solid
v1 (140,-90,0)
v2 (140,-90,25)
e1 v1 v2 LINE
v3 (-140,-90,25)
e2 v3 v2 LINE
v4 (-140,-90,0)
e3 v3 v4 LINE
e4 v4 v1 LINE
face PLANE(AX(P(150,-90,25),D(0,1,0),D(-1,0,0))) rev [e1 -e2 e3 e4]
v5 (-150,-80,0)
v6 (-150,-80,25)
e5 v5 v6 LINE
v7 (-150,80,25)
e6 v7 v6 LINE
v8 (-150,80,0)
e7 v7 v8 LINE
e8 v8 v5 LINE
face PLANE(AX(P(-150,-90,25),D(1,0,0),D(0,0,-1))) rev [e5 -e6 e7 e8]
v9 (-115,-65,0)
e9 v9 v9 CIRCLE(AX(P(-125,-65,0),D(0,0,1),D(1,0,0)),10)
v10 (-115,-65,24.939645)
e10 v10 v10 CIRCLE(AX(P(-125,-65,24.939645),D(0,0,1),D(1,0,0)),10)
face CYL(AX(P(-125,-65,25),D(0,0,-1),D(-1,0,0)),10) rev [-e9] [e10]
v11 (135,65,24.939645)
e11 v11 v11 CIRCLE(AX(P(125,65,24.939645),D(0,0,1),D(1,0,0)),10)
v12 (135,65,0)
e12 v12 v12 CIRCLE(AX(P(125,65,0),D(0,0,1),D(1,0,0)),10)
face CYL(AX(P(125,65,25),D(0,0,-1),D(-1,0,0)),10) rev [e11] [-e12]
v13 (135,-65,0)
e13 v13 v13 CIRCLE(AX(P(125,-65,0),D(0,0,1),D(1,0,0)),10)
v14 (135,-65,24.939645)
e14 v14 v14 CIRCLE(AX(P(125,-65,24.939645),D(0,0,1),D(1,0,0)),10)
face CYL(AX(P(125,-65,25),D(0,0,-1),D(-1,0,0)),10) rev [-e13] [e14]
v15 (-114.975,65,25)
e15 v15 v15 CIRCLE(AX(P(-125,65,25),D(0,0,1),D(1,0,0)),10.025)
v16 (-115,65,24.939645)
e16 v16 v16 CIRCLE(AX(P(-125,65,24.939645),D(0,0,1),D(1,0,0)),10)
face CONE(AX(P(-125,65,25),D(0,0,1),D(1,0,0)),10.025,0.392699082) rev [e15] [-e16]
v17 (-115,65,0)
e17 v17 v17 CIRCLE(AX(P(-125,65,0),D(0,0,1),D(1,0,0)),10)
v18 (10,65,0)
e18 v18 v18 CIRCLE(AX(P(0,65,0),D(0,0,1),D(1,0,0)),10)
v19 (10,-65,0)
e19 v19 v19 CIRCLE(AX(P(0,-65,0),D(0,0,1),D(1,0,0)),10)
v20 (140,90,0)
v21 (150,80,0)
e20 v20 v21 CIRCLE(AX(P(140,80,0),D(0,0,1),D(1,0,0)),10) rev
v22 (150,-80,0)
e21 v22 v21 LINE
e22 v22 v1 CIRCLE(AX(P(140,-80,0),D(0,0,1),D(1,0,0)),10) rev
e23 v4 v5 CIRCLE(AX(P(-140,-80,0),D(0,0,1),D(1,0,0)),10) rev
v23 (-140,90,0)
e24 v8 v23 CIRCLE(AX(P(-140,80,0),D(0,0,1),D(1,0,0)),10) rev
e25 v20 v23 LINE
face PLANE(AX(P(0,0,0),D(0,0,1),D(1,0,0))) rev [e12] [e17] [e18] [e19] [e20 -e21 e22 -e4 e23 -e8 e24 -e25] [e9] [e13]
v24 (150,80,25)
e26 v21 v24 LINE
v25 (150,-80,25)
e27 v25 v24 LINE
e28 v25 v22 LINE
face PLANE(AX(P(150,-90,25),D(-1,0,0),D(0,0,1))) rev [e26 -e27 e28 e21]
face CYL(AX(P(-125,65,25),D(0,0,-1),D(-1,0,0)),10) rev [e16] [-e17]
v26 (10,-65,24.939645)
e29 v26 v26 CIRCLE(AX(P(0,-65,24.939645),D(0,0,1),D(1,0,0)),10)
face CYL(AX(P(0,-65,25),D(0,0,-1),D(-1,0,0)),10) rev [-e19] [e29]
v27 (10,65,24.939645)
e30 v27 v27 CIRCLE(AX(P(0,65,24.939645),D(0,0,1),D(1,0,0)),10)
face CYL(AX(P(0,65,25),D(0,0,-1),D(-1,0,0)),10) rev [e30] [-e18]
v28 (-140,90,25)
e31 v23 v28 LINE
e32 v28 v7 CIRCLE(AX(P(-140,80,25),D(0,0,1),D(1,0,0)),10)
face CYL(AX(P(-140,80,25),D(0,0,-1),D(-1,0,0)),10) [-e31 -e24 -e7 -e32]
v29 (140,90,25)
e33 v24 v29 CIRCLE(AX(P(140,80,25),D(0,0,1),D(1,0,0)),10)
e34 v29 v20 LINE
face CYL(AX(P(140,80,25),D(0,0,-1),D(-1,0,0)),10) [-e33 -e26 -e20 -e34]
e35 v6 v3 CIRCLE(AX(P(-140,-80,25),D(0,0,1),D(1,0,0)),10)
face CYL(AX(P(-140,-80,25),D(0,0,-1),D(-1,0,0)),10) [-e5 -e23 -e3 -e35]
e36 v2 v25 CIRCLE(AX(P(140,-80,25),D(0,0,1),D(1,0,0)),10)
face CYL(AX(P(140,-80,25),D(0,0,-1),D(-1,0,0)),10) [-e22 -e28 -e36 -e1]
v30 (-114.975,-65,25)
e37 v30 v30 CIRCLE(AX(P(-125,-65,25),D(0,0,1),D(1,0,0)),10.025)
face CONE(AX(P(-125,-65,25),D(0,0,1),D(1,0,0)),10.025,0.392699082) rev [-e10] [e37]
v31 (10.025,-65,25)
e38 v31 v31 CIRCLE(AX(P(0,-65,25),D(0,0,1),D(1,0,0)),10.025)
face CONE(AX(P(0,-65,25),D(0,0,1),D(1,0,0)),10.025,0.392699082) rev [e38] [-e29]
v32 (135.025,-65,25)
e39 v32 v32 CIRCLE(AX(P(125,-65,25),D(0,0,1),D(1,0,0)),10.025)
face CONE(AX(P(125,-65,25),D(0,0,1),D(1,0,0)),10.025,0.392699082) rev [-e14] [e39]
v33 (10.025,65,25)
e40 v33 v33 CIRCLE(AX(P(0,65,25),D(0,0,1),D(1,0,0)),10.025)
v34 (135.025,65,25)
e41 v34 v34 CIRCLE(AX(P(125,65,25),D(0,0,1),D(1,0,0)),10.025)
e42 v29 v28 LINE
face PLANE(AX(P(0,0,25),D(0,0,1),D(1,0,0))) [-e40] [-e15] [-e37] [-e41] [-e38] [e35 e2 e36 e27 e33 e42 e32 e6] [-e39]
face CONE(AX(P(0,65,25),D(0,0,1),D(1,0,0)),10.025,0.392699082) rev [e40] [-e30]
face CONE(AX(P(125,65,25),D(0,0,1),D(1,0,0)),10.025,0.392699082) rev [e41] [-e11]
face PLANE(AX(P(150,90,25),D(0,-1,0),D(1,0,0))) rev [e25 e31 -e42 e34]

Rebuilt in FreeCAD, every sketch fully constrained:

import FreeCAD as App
import Part
import Sketcher
Q = App.Units.Quantity


def edges_at(feature, points):
    """Names of the edges that pass closest to the given points."""
    edges = feature.Shape.Edges
    near = lambda p: min(range(len(edges)), key=lambda i: edges[i].distToShape(Part.Vertex(*p))[0])
    return sorted({f"Edge{near(p) + 1}" for p in points})

doc = App.newDocument("Part")
params = doc.addObject("Spreadsheet::Sheet", "Params")
for row, (alias, value) in enumerate([
    ("sketch1_diameter", "20 mm"),
    ("sketch1_width", "300 mm"),
    ("sketch1_height", "180 mm"),
    ("pad1_length", "25 mm"),
    ("fillet_radius", "10 mm"),
    ("fillet2_radius", "10 mm"),
    ("groove_angle", "360 deg"),
    ("sketch3_diameter", "20 mm"),
    ("hole_diameter", "20 mm"),
    ("hole_depth", "27.005 mm"),
    ("hole_csink_diameter", "20.05 mm"),
], start=1):
    params.set(f"A{row}", alias)
    params.set(f"B{row}", "=" + value)
    params.setAlias(f"B{row}", alias)

body = doc.addObject("PartDesign::Body", "Body")

# Sketch on XY plane
sketch1 = body.newObject("Sketcher::SketchObject", "Sketch")
sketch1.AttachmentSupport = (doc.getObject("XY_Plane"), [""])
sketch1.MapMode = "FlatFace"
sketch1.addGeometry(Part.LineSegment(App.Vector(-150, 90, 0), App.Vector(-150, -90, 0)), False)
sketch1.addGeometry(Part.LineSegment(App.Vector(-150, -90, 0), App.Vector(150, -90, 0)), False)
sketch1.addGeometry(Part.LineSegment(App.Vector(150, -90, 0), App.Vector(150, 90, 0)), False)
sketch1.addGeometry(Part.LineSegment(App.Vector(150, 90, 0), App.Vector(-150, 90, 0)), False)
sketch1.addGeometry(Part.Circle(App.Vector(-125, -65, 0), App.Vector(0, 0, 1), 10), False)
sketch1.addGeometry(Part.Circle(App.Vector(0, -65, 0), App.Vector(0, 0, 1), 10), False)
sketch1.addGeometry(Part.Circle(App.Vector(125, -65, 0), App.Vector(0, 0, 1), 10), False)
sketch1.addGeometry(Part.Circle(App.Vector(-125, 65, 0), App.Vector(0, 0, 1), 10), False)
sketch1.addGeometry(Part.Circle(App.Vector(0, 65, 0), App.Vector(0, 0, 1), 10), False)
sketch1.addGeometry(Part.Circle(App.Vector(125, 65, 0), App.Vector(0, 0, 1), 10), False)
sketch1.addConstraint(Sketcher.Constraint("Coincident", 0, 2, 1, 1))
sketch1.addConstraint(Sketcher.Constraint("Coincident", 1, 2, 2, 1))
sketch1.addConstraint(Sketcher.Constraint("Coincident", 2, 2, 3, 1))
sketch1.addConstraint(Sketcher.Constraint("Coincident", 3, 2, 0, 1))
sketch1.addConstraint(Sketcher.Constraint("Vertical", 0))
sketch1.addConstraint(Sketcher.Constraint("Horizontal", 1))
sketch1.addConstraint(Sketcher.Constraint("Vertical", 2))
sketch1.addConstraint(Sketcher.Constraint("Horizontal", 3))
sketch1.addConstraint(Sketcher.Constraint("Equal", 4, 5))
sketch1.addConstraint(Sketcher.Constraint("Equal", 5, 6))
sketch1.addConstraint(Sketcher.Constraint("Equal", 6, 7))
sketch1.addConstraint(Sketcher.Constraint("Equal", 7, 8))
sketch1.addConstraint(Sketcher.Constraint("Equal", 8, 9))
sketch1.addConstraint(Sketcher.Constraint("Symmetric", 6, 3, 7, 3, -1, 1))
sketch1.addConstraint(Sketcher.Constraint("Symmetric", 5, 3, 8, 3, -1, 1))
sketch1.addConstraint(Sketcher.Constraint("Symmetric", 4, 3, 9, 3, -1, 1))
sketch1.addConstraint(Sketcher.Constraint("Symmetric", 0, 2, 2, 2, -1, 1))
sketch1.addConstraint(Sketcher.Constraint("Symmetric", 4, 3, 6, 3, -2))
sketch1.addConstraint(Sketcher.Constraint("PointOnObject", 5, 3, -2))
sketch1.addConstraint(Sketcher.Constraint("Horizontal", 4, 3, 5, 3))
sketch1.addConstraint(Sketcher.Constraint("Diameter", 4, 20.0))
sketch1.addConstraint(Sketcher.Constraint("DistanceX", 1, 1, 1, 2, 300.0))
sketch1.addConstraint(Sketcher.Constraint("DistanceY", 0, 2, 0, 1, 180.0))
sketch1.addConstraint(Sketcher.Constraint("DistanceX", 4, 3, -1, 1, 125.0))
sketch1.addConstraint(Sketcher.Constraint("DistanceY", 4, 3, -1, 1, 65.0))
sketch1.setExpression("Constraints[20]", "Params.sketch1_diameter")
sketch1.setExpression("Constraints[21]", "Params.sketch1_width")
sketch1.setExpression("Constraints[22]", "Params.sketch1_height")
pad1 = body.newObject("PartDesign::Pad", "Pad")
pad1.Profile = sketch1
pad1.setExpression("Length", "Params.pad1_length")
doc.recompute()

fillet = body.newObject("PartDesign::Fillet", "Fillet")
fillet.Base = (pad1, edges_at(pad1, [(-150, 90, 12.5)]))
fillet.setExpression("Radius", "Params.fillet_radius")
doc.recompute()

fillet2 = body.newObject("PartDesign::Fillet", "Fillet001")
fillet2.Base = (fillet, edges_at(fillet, [(150, 90, 12.5), (150, -90, 12.5), (-150, -90, 12.5)]))
fillet2.setExpression("Radius", "Params.fillet2_radius")

# Sketch on YZ plane
sketch2 = body.newObject("Sketcher::SketchObject", "Sketch001")
sketch2.AttachmentSupport = (doc.getObject("YZ_Plane"), [""])
sketch2.MapMode = "FlatFace"
sketch2.AttachmentOffset = App.Placement(App.Vector(0, 0, -125), App.Rotation())
sketch2.addGeometry(Part.LineSegment(App.Vector(65, -8.013606, 0), App.Vector(65, 25, 0)), False)
sketch2.addGeometry(Part.LineSegment(App.Vector(65, 25, 0), App.Vector(54.975, 25, 0)), False)
sketch2.addGeometry(Part.LineSegment(App.Vector(54.975, 25, 0), App.Vector(55, 24.939645, 0)), False)
sketch2.addGeometry(Part.LineSegment(App.Vector(55, 24.939645, 0), App.Vector(55, -2.005, 0)), False)
sketch2.addGeometry(Part.LineSegment(App.Vector(55, -2.005, 0), App.Vector(65, -8.013606, 0)), False)
sketch2.addGeometry(Part.LineSegment(App.Vector(65, 25, 0), App.Vector(65, -8.013606, 0)), True)  # axis
sketch2.addConstraint(Sketcher.Constraint("Coincident", 0, 2, 1, 1))
sketch2.addConstraint(Sketcher.Constraint("Coincident", 1, 2, 2, 1))
sketch2.addConstraint(Sketcher.Constraint("Coincident", 2, 2, 3, 1))
sketch2.addConstraint(Sketcher.Constraint("Coincident", 3, 2, 4, 1))
sketch2.addConstraint(Sketcher.Constraint("Coincident", 4, 2, 0, 1))
sketch2.addConstraint(Sketcher.Constraint("Vertical", 0))
sketch2.addConstraint(Sketcher.Constraint("Horizontal", 1))
sketch2.addConstraint(Sketcher.Constraint("Vertical", 3))
sketch2.addConstraint(Sketcher.Constraint("Vertical", 5))
sketch2.addConstraint(Sketcher.Constraint("Coincident", 5, 1, 0, 2))
sketch2.addConstraint(Sketcher.Constraint("Equal", 0, 5))
sketch2.addConstraint(Sketcher.Constraint("Angle", 4, Q("-31 deg")))
sketch2.addConstraint(Sketcher.Constraint("DistanceX", -1, 1, 0, 2, 65.0))
sketch2.addConstraint(Sketcher.Constraint("DistanceY", -1, 1, 0, 2, 25.0))
sketch2.addConstraint(Sketcher.Constraint("DistanceX", -1, 1, 2, 2, 55.0))
sketch2.addConstraint(Sketcher.Constraint("Angle", 2, Q("-67.5 deg")))
sketch2.addConstraint(Sketcher.Constraint("DistanceX", 1, 2, 1, 1, 10.025))
sketch2.addConstraint(Sketcher.Constraint("DistanceY", 3, 2, -1, 1, 2.005))
groove = body.newObject("PartDesign::Groove", "Groove")
groove.Profile = sketch2
groove.ReferenceAxis = (sketch2, ["Axis0"])
groove.setExpression("Angle", "Params.groove_angle")
doc.recompute()

datumplane = body.newObject("PartDesign::Plane", "DatumPlane")
datumplane.AttachmentSupport = (doc.getObject("XY_Plane"), [""])
datumplane.MapMode = "FlatFace"
datumplane.AttachmentOffset = App.Placement(App.Vector(0, 0, 25), App.Rotation())
mirrored = body.newObject("PartDesign::Mirrored", "Mirrored")
mirrored.Originals = [groove]
mirrored.MirrorPlane = (datumplane, [""])
body.Tip = mirrored

# Sketch on XY plane
sketch3 = body.newObject("Sketcher::SketchObject", "Sketch002")
sketch3.AttachmentSupport = (doc.getObject("XY_Plane"), [""])
sketch3.MapMode = "FlatFace"
sketch3.AttachmentOffset = App.Placement(App.Vector(0, 0, 25), App.Rotation())
sketch3.addGeometry(Part.Circle(App.Vector(-125, 65, 0), App.Vector(0, 0, 1), 10), False)
sketch3.addGeometry(Part.Circle(App.Vector(-125, -65, 0), App.Vector(0, 0, 1), 10), False)
sketch3.addGeometry(Part.Circle(App.Vector(0, 65, 0), App.Vector(0, 0, 1), 10), False)
sketch3.addGeometry(Part.Circle(App.Vector(0, -65, 0), App.Vector(0, 0, 1), 10), False)
sketch3.addGeometry(Part.Circle(App.Vector(125, -65, 0), App.Vector(0, 0, 1), 10), False)
sketch3.addGeometry(Part.Circle(App.Vector(125, 65, 0), App.Vector(0, 0, 1), 10), False)
sketch3.addConstraint(Sketcher.Constraint("Equal", 0, 1))
sketch3.addConstraint(Sketcher.Constraint("Equal", 1, 2))
sketch3.addConstraint(Sketcher.Constraint("Equal", 2, 3))
sketch3.addConstraint(Sketcher.Constraint("Equal", 3, 4))
sketch3.addConstraint(Sketcher.Constraint("Equal", 4, 5))
sketch3.addConstraint(Sketcher.Constraint("Symmetric", 2, 3, 3, 3, -1, 1))
sketch3.addConstraint(Sketcher.Constraint("Symmetric", 0, 3, 4, 3, -1, 1))
sketch3.addConstraint(Sketcher.Constraint("Symmetric", 1, 3, 5, 3, -1, 1))
sketch3.addConstraint(Sketcher.Constraint("Symmetric", 1, 3, 4, 3, -2))
sketch3.addConstraint(Sketcher.Constraint("PointOnObject", 2, 3, -2))
sketch3.addConstraint(Sketcher.Constraint("Horizontal", 0, 3, 2, 3))
sketch3.addConstraint(Sketcher.Constraint("Diameter", 0, 20.0))
sketch3.addConstraint(Sketcher.Constraint("DistanceX", 0, 3, -1, 1, 125.0))
sketch3.addConstraint(Sketcher.Constraint("DistanceY", -1, 1, 0, 3, 65.0))
sketch3.setExpression("Constraints[11]", "Params.sketch3_diameter")
doc.recompute()
hole = body.newObject("PartDesign::Hole", "Hole")
hole.Profile = sketch3
hole.ThreadType = "None"
hole.setExpression("Diameter", "Params.hole_diameter")
hole.DepthType = "Dimension"
hole.setExpression("Depth", "Params.hole_depth")
hole.DrillPoint = "Angled"
hole.DrillPointAngle = 118
hole.HoleCutType = "Countersink"
hole.setExpression("HoleCutDiameter", "Params.hole_csink_diameter")
hole.HoleCutCountersinkAngle = 45

doc.recompute()
